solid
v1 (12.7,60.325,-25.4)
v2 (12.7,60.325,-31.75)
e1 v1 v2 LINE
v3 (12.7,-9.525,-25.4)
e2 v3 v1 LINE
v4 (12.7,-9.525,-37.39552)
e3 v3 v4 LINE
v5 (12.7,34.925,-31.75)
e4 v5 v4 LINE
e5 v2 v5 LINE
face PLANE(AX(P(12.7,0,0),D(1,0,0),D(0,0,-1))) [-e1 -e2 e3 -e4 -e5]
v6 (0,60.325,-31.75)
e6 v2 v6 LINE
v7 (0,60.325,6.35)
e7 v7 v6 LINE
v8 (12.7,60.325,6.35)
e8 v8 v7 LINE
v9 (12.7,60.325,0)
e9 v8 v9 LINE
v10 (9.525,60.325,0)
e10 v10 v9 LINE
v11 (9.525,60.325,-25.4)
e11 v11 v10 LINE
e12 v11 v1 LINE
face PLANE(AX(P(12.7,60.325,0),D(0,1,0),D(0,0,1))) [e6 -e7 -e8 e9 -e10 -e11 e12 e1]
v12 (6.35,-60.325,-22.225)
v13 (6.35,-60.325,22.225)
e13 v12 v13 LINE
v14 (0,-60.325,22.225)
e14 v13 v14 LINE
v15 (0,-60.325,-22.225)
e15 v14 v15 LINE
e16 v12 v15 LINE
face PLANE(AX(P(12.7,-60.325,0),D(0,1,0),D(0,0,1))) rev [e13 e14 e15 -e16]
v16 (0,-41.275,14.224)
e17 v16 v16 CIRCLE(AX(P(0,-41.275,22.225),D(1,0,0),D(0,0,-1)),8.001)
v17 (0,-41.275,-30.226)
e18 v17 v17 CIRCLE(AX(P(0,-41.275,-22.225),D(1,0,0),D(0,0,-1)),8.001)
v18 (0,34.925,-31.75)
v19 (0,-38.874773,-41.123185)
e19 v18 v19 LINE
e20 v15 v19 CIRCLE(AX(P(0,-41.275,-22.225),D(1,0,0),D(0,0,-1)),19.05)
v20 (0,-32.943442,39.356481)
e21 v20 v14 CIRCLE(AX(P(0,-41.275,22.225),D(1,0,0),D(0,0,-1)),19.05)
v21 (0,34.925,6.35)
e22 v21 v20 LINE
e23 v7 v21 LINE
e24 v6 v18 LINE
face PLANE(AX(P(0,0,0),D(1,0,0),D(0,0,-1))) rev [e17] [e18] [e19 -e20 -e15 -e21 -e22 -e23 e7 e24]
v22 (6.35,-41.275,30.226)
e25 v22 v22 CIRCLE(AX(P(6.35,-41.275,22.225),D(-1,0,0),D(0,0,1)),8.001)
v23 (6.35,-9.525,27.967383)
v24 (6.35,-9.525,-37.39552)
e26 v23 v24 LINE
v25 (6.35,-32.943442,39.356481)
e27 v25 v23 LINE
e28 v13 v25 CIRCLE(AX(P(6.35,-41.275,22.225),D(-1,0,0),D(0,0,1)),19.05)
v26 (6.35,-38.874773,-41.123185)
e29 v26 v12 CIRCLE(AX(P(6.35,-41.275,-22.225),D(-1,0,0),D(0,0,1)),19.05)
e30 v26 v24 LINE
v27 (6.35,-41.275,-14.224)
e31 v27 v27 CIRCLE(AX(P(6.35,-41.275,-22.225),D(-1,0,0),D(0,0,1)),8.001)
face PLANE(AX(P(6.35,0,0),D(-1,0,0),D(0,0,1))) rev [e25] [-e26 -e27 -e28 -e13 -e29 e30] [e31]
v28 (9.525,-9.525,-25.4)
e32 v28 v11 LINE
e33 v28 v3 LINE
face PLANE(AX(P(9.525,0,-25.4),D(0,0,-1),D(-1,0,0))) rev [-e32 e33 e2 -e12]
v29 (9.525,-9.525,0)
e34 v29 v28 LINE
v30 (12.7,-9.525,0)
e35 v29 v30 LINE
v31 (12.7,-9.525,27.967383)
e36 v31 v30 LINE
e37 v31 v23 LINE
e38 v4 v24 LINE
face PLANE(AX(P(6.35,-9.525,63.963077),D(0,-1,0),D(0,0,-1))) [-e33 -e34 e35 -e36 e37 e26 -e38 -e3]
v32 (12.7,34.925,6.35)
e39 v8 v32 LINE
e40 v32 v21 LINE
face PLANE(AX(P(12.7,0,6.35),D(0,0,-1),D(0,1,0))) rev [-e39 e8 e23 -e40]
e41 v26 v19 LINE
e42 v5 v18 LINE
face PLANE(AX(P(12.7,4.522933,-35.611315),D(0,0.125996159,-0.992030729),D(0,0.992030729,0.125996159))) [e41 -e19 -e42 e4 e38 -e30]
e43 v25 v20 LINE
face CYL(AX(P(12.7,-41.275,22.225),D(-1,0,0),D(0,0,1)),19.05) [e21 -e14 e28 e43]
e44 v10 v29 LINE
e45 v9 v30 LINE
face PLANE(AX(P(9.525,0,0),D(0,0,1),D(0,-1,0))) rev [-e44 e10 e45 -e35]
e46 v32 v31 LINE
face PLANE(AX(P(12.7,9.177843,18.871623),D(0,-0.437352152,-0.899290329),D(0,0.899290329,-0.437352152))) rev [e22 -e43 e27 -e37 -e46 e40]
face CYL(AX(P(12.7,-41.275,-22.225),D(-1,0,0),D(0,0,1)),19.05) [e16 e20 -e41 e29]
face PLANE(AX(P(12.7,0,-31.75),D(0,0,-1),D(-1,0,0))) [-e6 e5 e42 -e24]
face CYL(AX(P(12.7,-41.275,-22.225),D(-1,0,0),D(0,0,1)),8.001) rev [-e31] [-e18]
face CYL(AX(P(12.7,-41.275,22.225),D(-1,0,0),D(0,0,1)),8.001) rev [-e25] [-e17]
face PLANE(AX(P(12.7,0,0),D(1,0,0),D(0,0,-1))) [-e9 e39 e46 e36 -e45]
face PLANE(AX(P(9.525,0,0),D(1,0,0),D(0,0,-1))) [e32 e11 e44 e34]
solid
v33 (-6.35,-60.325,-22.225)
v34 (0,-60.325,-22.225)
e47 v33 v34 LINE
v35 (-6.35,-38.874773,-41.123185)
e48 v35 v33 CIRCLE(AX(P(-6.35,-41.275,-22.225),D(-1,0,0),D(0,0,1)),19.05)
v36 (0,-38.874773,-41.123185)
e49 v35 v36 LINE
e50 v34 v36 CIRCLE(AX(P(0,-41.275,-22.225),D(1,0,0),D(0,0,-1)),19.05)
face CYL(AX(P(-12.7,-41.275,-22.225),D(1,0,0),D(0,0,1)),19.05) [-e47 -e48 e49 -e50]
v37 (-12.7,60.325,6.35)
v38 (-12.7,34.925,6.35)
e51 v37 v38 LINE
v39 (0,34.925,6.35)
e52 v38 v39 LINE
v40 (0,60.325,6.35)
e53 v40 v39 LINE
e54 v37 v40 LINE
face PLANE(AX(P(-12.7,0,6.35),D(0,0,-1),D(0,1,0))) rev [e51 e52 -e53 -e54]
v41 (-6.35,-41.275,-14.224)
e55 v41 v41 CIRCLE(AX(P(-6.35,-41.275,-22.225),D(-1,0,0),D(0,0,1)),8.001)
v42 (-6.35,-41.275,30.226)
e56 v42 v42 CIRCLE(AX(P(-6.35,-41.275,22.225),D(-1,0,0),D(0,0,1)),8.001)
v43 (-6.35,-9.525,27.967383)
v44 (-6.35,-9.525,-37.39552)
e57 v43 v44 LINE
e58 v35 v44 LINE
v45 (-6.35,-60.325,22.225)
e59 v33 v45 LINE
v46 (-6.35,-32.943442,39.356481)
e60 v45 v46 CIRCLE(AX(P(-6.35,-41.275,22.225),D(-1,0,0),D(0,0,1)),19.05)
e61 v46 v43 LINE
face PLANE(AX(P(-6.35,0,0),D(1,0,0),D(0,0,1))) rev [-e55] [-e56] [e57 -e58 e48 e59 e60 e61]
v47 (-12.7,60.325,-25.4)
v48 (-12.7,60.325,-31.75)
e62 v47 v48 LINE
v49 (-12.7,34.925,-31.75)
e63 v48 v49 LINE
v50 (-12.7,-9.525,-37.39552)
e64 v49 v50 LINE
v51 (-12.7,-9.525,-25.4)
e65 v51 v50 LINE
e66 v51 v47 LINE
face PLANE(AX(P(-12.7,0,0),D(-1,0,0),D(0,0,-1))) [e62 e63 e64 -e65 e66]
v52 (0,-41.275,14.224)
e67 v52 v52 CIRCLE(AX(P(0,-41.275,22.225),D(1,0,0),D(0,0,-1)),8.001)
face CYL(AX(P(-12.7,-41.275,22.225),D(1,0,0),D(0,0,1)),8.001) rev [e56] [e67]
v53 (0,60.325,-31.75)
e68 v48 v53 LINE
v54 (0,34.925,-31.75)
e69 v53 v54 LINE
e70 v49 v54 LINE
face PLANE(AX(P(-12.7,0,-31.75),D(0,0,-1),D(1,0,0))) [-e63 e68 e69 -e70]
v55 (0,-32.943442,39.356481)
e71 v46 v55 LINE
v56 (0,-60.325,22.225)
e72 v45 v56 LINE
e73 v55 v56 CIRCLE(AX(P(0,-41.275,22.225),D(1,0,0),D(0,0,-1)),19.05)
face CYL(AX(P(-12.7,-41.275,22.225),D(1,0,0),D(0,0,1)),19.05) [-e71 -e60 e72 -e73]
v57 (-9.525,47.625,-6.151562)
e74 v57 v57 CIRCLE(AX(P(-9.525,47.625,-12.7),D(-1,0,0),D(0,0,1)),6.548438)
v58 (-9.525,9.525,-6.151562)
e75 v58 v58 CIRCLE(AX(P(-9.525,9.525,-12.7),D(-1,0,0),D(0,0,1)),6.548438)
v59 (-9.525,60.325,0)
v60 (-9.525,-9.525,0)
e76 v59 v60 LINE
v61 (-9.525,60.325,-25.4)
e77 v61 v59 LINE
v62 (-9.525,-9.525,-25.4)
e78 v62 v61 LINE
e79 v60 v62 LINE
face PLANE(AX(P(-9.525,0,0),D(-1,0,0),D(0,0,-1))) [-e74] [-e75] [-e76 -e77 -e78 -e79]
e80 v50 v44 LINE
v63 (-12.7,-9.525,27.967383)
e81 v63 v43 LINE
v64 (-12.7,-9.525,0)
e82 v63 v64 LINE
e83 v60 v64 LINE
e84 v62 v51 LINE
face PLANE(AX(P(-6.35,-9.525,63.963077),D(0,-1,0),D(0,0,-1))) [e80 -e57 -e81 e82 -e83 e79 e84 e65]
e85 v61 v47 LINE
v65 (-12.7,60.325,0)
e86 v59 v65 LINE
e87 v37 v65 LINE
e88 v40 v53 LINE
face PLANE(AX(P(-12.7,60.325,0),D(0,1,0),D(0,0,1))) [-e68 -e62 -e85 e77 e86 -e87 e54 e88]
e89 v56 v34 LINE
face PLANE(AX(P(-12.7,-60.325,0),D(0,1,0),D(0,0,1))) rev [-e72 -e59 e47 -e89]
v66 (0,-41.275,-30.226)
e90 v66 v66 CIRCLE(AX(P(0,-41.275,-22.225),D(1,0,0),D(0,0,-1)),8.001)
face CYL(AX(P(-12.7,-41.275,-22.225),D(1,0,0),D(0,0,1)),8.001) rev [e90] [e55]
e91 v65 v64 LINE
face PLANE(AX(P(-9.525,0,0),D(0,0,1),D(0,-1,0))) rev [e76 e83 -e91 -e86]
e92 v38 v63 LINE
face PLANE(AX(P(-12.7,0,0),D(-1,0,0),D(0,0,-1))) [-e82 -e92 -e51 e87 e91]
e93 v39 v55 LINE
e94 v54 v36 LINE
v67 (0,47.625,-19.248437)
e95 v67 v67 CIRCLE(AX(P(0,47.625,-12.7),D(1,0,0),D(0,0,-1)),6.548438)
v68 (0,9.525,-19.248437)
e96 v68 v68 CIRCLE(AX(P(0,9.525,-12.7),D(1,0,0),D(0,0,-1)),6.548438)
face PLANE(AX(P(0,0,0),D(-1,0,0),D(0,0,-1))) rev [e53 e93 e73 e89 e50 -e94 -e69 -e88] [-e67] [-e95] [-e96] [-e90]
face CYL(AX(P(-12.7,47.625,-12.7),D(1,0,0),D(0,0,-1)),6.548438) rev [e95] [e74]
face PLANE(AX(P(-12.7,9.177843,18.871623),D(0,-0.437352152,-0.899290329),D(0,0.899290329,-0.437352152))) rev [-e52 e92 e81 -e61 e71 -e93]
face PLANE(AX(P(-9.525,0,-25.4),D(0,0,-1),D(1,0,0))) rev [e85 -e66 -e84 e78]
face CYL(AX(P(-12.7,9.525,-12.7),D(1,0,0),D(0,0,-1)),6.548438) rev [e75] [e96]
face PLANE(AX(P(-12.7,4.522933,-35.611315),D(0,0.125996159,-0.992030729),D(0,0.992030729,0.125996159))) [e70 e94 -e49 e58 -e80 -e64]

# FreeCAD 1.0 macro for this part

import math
import FreeCAD as App
import Part
import Sketcher
from FreeCAD import Vector
Q = App.Units.Quantity

doc = App.newDocument("Part")
body = doc.addObject("PartDesign::Body", "Body")

# Sketch on YZ plane
sketch1 = body.newObject("Sketcher::SketchObject", "Sketch")
sketch1.AttachmentSupport = (doc.getObject("YZ_Plane"), [""])
sketch1.MapMode = "FlatFace"
sketch1.addGeometry([
    Part.LineSegment(Vector(-60, 22, 0), Vector(-60, -22, 0)),  # 0
    Part.ArcOfCircle(Part.Circle(Vector(-41, -22, 0), Vector(0, 0, 1), 19), math.radians(180), math.radians(277)),  # 1
    Part.LineSegment(Vector(-39, -41, 0), Vector(35, -32, 0)),  # 2
    Part.LineSegment(Vector(35, -32, 0), Vector(60, -32, 0)),  # 3
    Part.LineSegment(Vector(60, -32, 0), Vector(60, 6, 0)),  # 4
    Part.LineSegment(Vector(60, 6, 0), Vector(35, 6, 0)),  # 5
    Part.LineSegment(Vector(35, 6, 0), Vector(-33, 39, 0)),  # 6
    Part.ArcOfCircle(Part.Circle(Vector(-41, 22, 0), Vector(0, 0, 1), 19), math.radians(64), math.radians(180)),  # 7
    Part.Circle(Vector(-41, 22, 0), Vector(0, 0, 1), 8),  # 8
    Part.Circle(Vector(-41, -22, 0), Vector(0, 0, 1), 8),  # 9
], False)
sketch1.addConstraint([
    Sketcher.Constraint("Tangent", 0, 2, 1, 1),
    Sketcher.Constraint("Tangent", 1, 2, 2, 1),
    Sketcher.Constraint("Coincident", 2, 2, 3, 1),
    Sketcher.Constraint("Coincident", 3, 2, 4, 1),
    Sketcher.Constraint("Coincident", 4, 2, 5, 1),
    Sketcher.Constraint("Coincident", 5, 2, 6, 1),
    Sketcher.Constraint("Tangent", 6, 2, 7, 1),
    Sketcher.Constraint("Tangent", 7, 2, 0, 1),
    Sketcher.Constraint("Vertical", 0),
    Sketcher.Constraint("Horizontal", 3),
    Sketcher.Constraint("Vertical", 4),
    Sketcher.Constraint("Horizontal", 5),
    Sketcher.Constraint("Coincident", 8, 3, 7, 3),
    Sketcher.Constraint("Coincident", 9, 3, 1, 3),
    Sketcher.Constraint("Equal", 1, 7),
    Sketcher.Constraint("Equal", 8, 9),
    Sketcher.Constraint("Vertical", 2, 2, 5, 2),
    Sketcher.Constraint("Diameter", 8, Q("0.63 in")),
    Sketcher.Constraint("DistanceX", 3, 1, 3, 2, Q("1 in")),
    Sketcher.Constraint("Radius", 1, Q("0.75 in")),
    Sketcher.Constraint("DistanceY", 4, 1, 4, 2, Q("1.5 in")),
    Sketcher.Constraint("DistanceX", 1, 3, 2, 2, Q("3 in")),
    Sketcher.Constraint("DistanceY", 0, 2, 0, 1, Q("1.75 in")),
    Sketcher.Constraint("DistanceY", 2, 2, -1, 1, Q("1.25 in")),
    Sketcher.Constraint("DistanceX", 1, 3, -1, 1, Q("1.625 in")),
    Sketcher.Constraint("DistanceY", 1, 3, -1, 1, Q("0.875 in")),
])
pad1 = body.newObject("PartDesign::Pad", "Pad")
pad1.Profile = sketch1
pad1.Length = Q("0.5 in")

# Sketch on YZ plane
sketch2 = body.newObject("Sketcher::SketchObject", "Sketch001")
sketch2.AttachmentSupport = (doc.getObject("YZ_Plane"), [""])
sketch2.MapMode = "FlatFace"
sketch2.AttachmentOffset = App.Placement(Vector(0, 0, 0.5 * 25.4), App.Rotation())
sketch2.addGeometry([
    Part.LineSegment(Vector(-10, 64, 0), Vector(-73, 64, 0)),
    Part.LineSegment(Vector(-73, 64, 0), Vector(-73, -64, 0)),
    Part.LineSegment(Vector(-73, -64, 0), Vector(-10, -64, 0)),
    Part.LineSegment(Vector(-10, -64, 0), Vector(-10, 64, 0)),
], False)
sketch2.addConstraint([
    Sketcher.Constraint("Coincident", 0, 2, 1, 1),
    Sketcher.Constraint("Coincident", 1, 2, 2, 1),
    Sketcher.Constraint("Coincident", 2, 2, 3, 1),
    Sketcher.Constraint("Coincident", 3, 2, 0, 1),
    Sketcher.Constraint("Horizontal", 0),
    Sketcher.Constraint("Vertical", 1),
    Sketcher.Constraint("Horizontal", 2),
    Sketcher.Constraint("Vertical", 3),
    Sketcher.Constraint("DistanceX", 0, 2, 0, 1, Q("2.5 in")),
    Sketcher.Constraint("DistanceX", 0, 2, -1, 1, Q("2.875 in")),
    Sketcher.Constraint("DistanceY", 1, 2, 1, 1, Q("127.926153 mm")),
    Sketcher.Constraint("DistanceY", -1, 1, 0, 2, Q("63.963077 mm")),
])
pocket1 = body.newObject("PartDesign::Pocket", "Pocket")
pocket1.Profile = sketch2
pocket1.Length = Q("0.25 in")

# Sketch on YZ plane
sketch3 = body.newObject("Sketcher::SketchObject", "Sketch002")
sketch3.AttachmentSupport = (doc.getObject("YZ_Plane"), [""])
sketch3.MapMode = "FlatFace"
sketch3.AttachmentOffset = App.Placement(Vector(0, 0, 0.5 * 25.4), App.Rotation())
sketch3.addGeometry([
    Part.LineSegment(Vector(60, 0, 0), Vector(-10, 0, 0)),
    Part.LineSegment(Vector(-10, 0, 0), Vector(-10, -25, 0)),
    Part.LineSegment(Vector(-10, -25, 0), Vector(60, -25, 0)),
    Part.LineSegment(Vector(60, -25, 0), Vector(60, 0, 0)),
], False)
sketch3.addConstraint([
    Sketcher.Constraint("Coincident", 0, 2, 1, 1),
    Sketcher.Constraint("Coincident", 1, 2, 2, 1),
    Sketcher.Constraint("Coincident", 2, 2, 3, 1),
    Sketcher.Constraint("Coincident", 3, 2, 0, 1),
    Sketcher.Constraint("Horizontal", 0),
    Sketcher.Constraint("Vertical", 1),
    Sketcher.Constraint("Horizontal", 2),
    Sketcher.Constraint("Vertical", 3),
    Sketcher.Constraint("PointOnObject", 0, 2, -1),
    Sketcher.Constraint("DistanceY", 1, 2, 1, 1, Q("1 in")),
    Sketcher.Constraint("DistanceX", 0, 2, 0, 1, Q("2.75 in")),
    Sketcher.Constraint("DistanceX", 0, 2, -1, 1, Q("0.375 in")),
])
pocket2 = body.newObject("PartDesign::Pocket", "Pocket001")
pocket2.Profile = sketch3
pocket2.Length = Q("0.125 in")
body2 = doc.addObject("PartDesign::Body", "Body001")
doc.recompute()

mirroring = doc.addObject("Part::Mirroring", "Mirroring")
mirroring.Source = body
mirroring.Base = Vector(0, 0, 0)
mirroring.Normal = Vector(1, 0, 0)
body2.BaseFeature = mirroring
doc.recompute()

# Sketch on YZ plane
sketch4 = body2.newObject("Sketcher::SketchObject", "Sketch003")
sketch4.AttachmentSupport = (doc.getObject("YZ_Plane001"), [""])
sketch4.MapMode = "FlatFace"
sketch4.addGeometry([
    Part.Circle(Vector(10, -13, 0), Vector(0, 0, 1), 7),
    Part.Circle(Vector(48, -13, 0), Vector(0, 0, 1), 7),
], False)
sketch4.addConstraint([
    Sketcher.Constraint("Equal", 0, 1),
    Sketcher.Constraint("Horizontal", 0, 3, 1, 3),
    Sketcher.Constraint("Diameter", 0, Q("0.515625 in")),
    Sketcher.Constraint("DistanceY", 0, 3, -1, 1, Q("0.5 in")),
    Sketcher.Constraint("DistanceX", 0, 3, 1, 3, Q("1.5 in")),
    Sketcher.Constraint("DistanceX", -1, 1, 0, 3, Q("0.375 in")),
])
pocket3 = body2.newObject("PartDesign::Pocket", "Pocket002")
pocket3.Profile = sketch4
pocket3.Type = "ThroughAll"
mirroring.Visibility = False

doc.recompute()
